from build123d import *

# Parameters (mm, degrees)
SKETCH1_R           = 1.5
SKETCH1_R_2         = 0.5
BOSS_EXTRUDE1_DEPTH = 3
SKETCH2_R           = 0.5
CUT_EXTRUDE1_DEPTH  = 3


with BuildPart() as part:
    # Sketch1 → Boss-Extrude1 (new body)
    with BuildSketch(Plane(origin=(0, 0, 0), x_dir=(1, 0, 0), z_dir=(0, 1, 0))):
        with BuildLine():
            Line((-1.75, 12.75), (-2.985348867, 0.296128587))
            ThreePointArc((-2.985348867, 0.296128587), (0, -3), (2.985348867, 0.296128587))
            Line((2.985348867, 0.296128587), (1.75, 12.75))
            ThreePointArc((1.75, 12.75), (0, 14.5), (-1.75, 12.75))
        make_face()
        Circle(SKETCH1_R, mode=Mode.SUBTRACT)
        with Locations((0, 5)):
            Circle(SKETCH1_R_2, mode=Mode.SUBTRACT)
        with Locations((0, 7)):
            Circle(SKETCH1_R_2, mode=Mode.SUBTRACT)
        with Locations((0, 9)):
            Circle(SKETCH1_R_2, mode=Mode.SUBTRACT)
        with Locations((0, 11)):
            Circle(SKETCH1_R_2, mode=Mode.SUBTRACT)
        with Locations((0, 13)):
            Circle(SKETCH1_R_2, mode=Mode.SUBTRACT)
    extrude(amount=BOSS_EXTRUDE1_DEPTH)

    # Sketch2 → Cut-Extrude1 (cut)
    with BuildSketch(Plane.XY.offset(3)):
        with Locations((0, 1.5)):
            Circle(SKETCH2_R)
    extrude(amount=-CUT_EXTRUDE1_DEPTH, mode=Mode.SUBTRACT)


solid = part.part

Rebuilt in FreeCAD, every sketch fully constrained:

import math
import FreeCAD as App
import Part
import Sketcher

V = App.Vector
Q = App.Units.Quantity

doc = App.newDocument("Part")
params = doc.addObject("Spreadsheet::Sheet", "Params")
for row, (alias, value) in enumerate([
    ("sketch1_diameter", "3 mm"),
    ("sketch1_diameter2", "1 mm"),
    ("sketch1_radius", "3 mm"),
    ("sketch1_radius2", "1.75 mm"),
    ("pad1_length", "3 mm"),
    ("sketch2_diameter", "1 mm"),
    ("pocket1_length", "3 mm"),
], start=1):
    params.set(f"A{row}", alias)
    params.set(f"B{row}", "=" + value)
    params.setAlias(f"B{row}", alias)

body = doc.addObject("PartDesign::Body", "Body")

# Sketch on XZ plane
sketch1 = body.newObject("Sketcher::SketchObject", "Sketch")
sketch1.AttachmentSupport = (doc.getObject("XZ_Plane"), [""])
sketch1.MapMode = "FlatFace"
sketch1.addGeometry(Part.LineSegment(V(-1.8, -12.8, 0), V(-3, -0.3, 0)), False)
sketch1.addGeometry(Part.ArcOfCircle(Part.Circle(V(0, 0, 0), V(0, 0, 1), 3), math.radians(-6), math.radians(186)), False)
sketch1.addGeometry(Part.LineSegment(V(3, -0.3, 0), V(1.8, -12.8, 0)), False)
sketch1.addGeometry(Part.ArcOfCircle(Part.Circle(V(0, -12.8, 0), V(0, 0, 1), 1.8), math.radians(180), math.radians(360)), False)
sketch1.addGeometry(Part.Circle(V(0, 0, 0), V(0, 0, 1), 1.5), False)
sketch1.addGeometry(Part.Circle(V(0, -5, 0), V(0, 0, 1), 0.5), False)
sketch1.addGeometry(Part.Circle(V(0, -7, 0), V(0, 0, 1), 0.5), False)
sketch1.addGeometry(Part.Circle(V(0, -9, 0), V(0, 0, 1), 0.5), False)
sketch1.addGeometry(Part.Circle(V(0, -11, 0), V(0, 0, 1), 0.5), False)
sketch1.addGeometry(Part.Circle(V(0, -13, 0), V(0, 0, 1), 0.5), False)
sketch1.addConstraint(Sketcher.Constraint("Tangent", 0, 2, 1, 2))
sketch1.addConstraint(Sketcher.Constraint("Tangent", 1, 1, 2, 1))
sketch1.addConstraint(Sketcher.Constraint("Coincident", 2, 2, 3, 2))
sketch1.addConstraint(Sketcher.Constraint("Coincident", 3, 1, 0, 1))
sketch1.addConstraint(Sketcher.Constraint("Coincident", 1, 3, -1, 1))
sketch1.addConstraint(Sketcher.Constraint("Coincident", 4, 3, -1, 1))
sketch1.addConstraint(Sketcher.Constraint("Equal", 5, 6))
sketch1.addConstraint(Sketcher.Constraint("Equal", 6, 7))
sketch1.addConstraint(Sketcher.Constraint("Equal", 7, 8))
sketch1.addConstraint(Sketcher.Constraint("Equal", 8, 9))
sketch1.addConstraint(Sketcher.Constraint("Symmetric", 2, 2, 3, 1, -2))
sketch1.addConstraint(Sketcher.Constraint("PointOnObject", 5, 3, -2))
sketch1.addConstraint(Sketcher.Constraint("PointOnObject", 6, 3, -2))
sketch1.addConstraint(Sketcher.Constraint("PointOnObject", 7, 3, -2))
sketch1.addConstraint(Sketcher.Constraint("PointOnObject", 8, 3, -2))
sketch1.addConstraint(Sketcher.Constraint("PointOnObject", 9, 3, -2))
sketch1.addConstraint(Sketcher.Constraint("Horizontal", 3, 3, 2, 2))
sketch1.addConstraint(Sketcher.Constraint("Diameter", 4, Q("3 mm")))
sketch1.addConstraint(Sketcher.Constraint("Diameter", 5, Q("1 mm")))
sketch1.addConstraint(Sketcher.Constraint("Radius", 1, Q("3 mm")))
sketch1.addConstraint(Sketcher.Constraint("Radius", 3, Q("1.75 mm")))
sketch1.addConstraint(Sketcher.Constraint("DistanceY", 5, 3, -1, 1, Q("5 mm")))
sketch1.addConstraint(Sketcher.Constraint("DistanceY", 6, 3, -1, 1, Q("7 mm")))
sketch1.addConstraint(Sketcher.Constraint("DistanceY", 7, 3, -1, 1, Q("9 mm")))
sketch1.addConstraint(Sketcher.Constraint("DistanceY", 8, 3, -1, 1, Q("11 mm")))
sketch1.addConstraint(Sketcher.Constraint("DistanceY", 9, 3, -1, 1, Q("13 mm")))
sketch1.addConstraint(Sketcher.Constraint("DistanceY", 3, 3, -1, 1, Q("12.75 mm")))
sketch1.setExpression("Constraints[17]", "Params.sketch1_diameter")
sketch1.setExpression("Constraints[18]", "Params.sketch1_diameter2")
sketch1.setExpression("Constraints[19]", "Params.sketch1_radius")
sketch1.setExpression("Constraints[20]", "Params.sketch1_radius2")
pad1 = body.newObject("PartDesign::Pad", "Pad")
pad1.Profile = sketch1
pad1.setExpression("Length", "Params.pad1_length")
pad1.Reversed = True

# Sketch on XY plane
sketch2 = body.newObject("Sketcher::SketchObject", "Sketch001")
sketch2.AttachmentSupport = (doc.getObject("XY_Plane"), [""])
sketch2.MapMode = "FlatFace"
sketch2.AttachmentOffset = App.Placement(V(0, 0, 3), App.Rotation())
sketch2.addGeometry(Part.Circle(V(0, 1.5, 0), V(0, 0, 1), 0.5), False)
sketch2.addConstraint(Sketcher.Constraint("PointOnObject", 0, 3, -2))
sketch2.addConstraint(Sketcher.Constraint("Diameter", 0, Q("1 mm")))
sketch2.addConstraint(Sketcher.Constraint("DistanceY", -1, 1, 0, 3, Q("1.5 mm")))
sketch2.setExpression("Constraints[1]", "Params.sketch2_diameter")
pocket1 = body.newObject("PartDesign::Pocket", "Pocket")
pocket1.Profile = sketch2
pocket1.setExpression("Length", "Params.pocket1_length")

doc.recompute()
